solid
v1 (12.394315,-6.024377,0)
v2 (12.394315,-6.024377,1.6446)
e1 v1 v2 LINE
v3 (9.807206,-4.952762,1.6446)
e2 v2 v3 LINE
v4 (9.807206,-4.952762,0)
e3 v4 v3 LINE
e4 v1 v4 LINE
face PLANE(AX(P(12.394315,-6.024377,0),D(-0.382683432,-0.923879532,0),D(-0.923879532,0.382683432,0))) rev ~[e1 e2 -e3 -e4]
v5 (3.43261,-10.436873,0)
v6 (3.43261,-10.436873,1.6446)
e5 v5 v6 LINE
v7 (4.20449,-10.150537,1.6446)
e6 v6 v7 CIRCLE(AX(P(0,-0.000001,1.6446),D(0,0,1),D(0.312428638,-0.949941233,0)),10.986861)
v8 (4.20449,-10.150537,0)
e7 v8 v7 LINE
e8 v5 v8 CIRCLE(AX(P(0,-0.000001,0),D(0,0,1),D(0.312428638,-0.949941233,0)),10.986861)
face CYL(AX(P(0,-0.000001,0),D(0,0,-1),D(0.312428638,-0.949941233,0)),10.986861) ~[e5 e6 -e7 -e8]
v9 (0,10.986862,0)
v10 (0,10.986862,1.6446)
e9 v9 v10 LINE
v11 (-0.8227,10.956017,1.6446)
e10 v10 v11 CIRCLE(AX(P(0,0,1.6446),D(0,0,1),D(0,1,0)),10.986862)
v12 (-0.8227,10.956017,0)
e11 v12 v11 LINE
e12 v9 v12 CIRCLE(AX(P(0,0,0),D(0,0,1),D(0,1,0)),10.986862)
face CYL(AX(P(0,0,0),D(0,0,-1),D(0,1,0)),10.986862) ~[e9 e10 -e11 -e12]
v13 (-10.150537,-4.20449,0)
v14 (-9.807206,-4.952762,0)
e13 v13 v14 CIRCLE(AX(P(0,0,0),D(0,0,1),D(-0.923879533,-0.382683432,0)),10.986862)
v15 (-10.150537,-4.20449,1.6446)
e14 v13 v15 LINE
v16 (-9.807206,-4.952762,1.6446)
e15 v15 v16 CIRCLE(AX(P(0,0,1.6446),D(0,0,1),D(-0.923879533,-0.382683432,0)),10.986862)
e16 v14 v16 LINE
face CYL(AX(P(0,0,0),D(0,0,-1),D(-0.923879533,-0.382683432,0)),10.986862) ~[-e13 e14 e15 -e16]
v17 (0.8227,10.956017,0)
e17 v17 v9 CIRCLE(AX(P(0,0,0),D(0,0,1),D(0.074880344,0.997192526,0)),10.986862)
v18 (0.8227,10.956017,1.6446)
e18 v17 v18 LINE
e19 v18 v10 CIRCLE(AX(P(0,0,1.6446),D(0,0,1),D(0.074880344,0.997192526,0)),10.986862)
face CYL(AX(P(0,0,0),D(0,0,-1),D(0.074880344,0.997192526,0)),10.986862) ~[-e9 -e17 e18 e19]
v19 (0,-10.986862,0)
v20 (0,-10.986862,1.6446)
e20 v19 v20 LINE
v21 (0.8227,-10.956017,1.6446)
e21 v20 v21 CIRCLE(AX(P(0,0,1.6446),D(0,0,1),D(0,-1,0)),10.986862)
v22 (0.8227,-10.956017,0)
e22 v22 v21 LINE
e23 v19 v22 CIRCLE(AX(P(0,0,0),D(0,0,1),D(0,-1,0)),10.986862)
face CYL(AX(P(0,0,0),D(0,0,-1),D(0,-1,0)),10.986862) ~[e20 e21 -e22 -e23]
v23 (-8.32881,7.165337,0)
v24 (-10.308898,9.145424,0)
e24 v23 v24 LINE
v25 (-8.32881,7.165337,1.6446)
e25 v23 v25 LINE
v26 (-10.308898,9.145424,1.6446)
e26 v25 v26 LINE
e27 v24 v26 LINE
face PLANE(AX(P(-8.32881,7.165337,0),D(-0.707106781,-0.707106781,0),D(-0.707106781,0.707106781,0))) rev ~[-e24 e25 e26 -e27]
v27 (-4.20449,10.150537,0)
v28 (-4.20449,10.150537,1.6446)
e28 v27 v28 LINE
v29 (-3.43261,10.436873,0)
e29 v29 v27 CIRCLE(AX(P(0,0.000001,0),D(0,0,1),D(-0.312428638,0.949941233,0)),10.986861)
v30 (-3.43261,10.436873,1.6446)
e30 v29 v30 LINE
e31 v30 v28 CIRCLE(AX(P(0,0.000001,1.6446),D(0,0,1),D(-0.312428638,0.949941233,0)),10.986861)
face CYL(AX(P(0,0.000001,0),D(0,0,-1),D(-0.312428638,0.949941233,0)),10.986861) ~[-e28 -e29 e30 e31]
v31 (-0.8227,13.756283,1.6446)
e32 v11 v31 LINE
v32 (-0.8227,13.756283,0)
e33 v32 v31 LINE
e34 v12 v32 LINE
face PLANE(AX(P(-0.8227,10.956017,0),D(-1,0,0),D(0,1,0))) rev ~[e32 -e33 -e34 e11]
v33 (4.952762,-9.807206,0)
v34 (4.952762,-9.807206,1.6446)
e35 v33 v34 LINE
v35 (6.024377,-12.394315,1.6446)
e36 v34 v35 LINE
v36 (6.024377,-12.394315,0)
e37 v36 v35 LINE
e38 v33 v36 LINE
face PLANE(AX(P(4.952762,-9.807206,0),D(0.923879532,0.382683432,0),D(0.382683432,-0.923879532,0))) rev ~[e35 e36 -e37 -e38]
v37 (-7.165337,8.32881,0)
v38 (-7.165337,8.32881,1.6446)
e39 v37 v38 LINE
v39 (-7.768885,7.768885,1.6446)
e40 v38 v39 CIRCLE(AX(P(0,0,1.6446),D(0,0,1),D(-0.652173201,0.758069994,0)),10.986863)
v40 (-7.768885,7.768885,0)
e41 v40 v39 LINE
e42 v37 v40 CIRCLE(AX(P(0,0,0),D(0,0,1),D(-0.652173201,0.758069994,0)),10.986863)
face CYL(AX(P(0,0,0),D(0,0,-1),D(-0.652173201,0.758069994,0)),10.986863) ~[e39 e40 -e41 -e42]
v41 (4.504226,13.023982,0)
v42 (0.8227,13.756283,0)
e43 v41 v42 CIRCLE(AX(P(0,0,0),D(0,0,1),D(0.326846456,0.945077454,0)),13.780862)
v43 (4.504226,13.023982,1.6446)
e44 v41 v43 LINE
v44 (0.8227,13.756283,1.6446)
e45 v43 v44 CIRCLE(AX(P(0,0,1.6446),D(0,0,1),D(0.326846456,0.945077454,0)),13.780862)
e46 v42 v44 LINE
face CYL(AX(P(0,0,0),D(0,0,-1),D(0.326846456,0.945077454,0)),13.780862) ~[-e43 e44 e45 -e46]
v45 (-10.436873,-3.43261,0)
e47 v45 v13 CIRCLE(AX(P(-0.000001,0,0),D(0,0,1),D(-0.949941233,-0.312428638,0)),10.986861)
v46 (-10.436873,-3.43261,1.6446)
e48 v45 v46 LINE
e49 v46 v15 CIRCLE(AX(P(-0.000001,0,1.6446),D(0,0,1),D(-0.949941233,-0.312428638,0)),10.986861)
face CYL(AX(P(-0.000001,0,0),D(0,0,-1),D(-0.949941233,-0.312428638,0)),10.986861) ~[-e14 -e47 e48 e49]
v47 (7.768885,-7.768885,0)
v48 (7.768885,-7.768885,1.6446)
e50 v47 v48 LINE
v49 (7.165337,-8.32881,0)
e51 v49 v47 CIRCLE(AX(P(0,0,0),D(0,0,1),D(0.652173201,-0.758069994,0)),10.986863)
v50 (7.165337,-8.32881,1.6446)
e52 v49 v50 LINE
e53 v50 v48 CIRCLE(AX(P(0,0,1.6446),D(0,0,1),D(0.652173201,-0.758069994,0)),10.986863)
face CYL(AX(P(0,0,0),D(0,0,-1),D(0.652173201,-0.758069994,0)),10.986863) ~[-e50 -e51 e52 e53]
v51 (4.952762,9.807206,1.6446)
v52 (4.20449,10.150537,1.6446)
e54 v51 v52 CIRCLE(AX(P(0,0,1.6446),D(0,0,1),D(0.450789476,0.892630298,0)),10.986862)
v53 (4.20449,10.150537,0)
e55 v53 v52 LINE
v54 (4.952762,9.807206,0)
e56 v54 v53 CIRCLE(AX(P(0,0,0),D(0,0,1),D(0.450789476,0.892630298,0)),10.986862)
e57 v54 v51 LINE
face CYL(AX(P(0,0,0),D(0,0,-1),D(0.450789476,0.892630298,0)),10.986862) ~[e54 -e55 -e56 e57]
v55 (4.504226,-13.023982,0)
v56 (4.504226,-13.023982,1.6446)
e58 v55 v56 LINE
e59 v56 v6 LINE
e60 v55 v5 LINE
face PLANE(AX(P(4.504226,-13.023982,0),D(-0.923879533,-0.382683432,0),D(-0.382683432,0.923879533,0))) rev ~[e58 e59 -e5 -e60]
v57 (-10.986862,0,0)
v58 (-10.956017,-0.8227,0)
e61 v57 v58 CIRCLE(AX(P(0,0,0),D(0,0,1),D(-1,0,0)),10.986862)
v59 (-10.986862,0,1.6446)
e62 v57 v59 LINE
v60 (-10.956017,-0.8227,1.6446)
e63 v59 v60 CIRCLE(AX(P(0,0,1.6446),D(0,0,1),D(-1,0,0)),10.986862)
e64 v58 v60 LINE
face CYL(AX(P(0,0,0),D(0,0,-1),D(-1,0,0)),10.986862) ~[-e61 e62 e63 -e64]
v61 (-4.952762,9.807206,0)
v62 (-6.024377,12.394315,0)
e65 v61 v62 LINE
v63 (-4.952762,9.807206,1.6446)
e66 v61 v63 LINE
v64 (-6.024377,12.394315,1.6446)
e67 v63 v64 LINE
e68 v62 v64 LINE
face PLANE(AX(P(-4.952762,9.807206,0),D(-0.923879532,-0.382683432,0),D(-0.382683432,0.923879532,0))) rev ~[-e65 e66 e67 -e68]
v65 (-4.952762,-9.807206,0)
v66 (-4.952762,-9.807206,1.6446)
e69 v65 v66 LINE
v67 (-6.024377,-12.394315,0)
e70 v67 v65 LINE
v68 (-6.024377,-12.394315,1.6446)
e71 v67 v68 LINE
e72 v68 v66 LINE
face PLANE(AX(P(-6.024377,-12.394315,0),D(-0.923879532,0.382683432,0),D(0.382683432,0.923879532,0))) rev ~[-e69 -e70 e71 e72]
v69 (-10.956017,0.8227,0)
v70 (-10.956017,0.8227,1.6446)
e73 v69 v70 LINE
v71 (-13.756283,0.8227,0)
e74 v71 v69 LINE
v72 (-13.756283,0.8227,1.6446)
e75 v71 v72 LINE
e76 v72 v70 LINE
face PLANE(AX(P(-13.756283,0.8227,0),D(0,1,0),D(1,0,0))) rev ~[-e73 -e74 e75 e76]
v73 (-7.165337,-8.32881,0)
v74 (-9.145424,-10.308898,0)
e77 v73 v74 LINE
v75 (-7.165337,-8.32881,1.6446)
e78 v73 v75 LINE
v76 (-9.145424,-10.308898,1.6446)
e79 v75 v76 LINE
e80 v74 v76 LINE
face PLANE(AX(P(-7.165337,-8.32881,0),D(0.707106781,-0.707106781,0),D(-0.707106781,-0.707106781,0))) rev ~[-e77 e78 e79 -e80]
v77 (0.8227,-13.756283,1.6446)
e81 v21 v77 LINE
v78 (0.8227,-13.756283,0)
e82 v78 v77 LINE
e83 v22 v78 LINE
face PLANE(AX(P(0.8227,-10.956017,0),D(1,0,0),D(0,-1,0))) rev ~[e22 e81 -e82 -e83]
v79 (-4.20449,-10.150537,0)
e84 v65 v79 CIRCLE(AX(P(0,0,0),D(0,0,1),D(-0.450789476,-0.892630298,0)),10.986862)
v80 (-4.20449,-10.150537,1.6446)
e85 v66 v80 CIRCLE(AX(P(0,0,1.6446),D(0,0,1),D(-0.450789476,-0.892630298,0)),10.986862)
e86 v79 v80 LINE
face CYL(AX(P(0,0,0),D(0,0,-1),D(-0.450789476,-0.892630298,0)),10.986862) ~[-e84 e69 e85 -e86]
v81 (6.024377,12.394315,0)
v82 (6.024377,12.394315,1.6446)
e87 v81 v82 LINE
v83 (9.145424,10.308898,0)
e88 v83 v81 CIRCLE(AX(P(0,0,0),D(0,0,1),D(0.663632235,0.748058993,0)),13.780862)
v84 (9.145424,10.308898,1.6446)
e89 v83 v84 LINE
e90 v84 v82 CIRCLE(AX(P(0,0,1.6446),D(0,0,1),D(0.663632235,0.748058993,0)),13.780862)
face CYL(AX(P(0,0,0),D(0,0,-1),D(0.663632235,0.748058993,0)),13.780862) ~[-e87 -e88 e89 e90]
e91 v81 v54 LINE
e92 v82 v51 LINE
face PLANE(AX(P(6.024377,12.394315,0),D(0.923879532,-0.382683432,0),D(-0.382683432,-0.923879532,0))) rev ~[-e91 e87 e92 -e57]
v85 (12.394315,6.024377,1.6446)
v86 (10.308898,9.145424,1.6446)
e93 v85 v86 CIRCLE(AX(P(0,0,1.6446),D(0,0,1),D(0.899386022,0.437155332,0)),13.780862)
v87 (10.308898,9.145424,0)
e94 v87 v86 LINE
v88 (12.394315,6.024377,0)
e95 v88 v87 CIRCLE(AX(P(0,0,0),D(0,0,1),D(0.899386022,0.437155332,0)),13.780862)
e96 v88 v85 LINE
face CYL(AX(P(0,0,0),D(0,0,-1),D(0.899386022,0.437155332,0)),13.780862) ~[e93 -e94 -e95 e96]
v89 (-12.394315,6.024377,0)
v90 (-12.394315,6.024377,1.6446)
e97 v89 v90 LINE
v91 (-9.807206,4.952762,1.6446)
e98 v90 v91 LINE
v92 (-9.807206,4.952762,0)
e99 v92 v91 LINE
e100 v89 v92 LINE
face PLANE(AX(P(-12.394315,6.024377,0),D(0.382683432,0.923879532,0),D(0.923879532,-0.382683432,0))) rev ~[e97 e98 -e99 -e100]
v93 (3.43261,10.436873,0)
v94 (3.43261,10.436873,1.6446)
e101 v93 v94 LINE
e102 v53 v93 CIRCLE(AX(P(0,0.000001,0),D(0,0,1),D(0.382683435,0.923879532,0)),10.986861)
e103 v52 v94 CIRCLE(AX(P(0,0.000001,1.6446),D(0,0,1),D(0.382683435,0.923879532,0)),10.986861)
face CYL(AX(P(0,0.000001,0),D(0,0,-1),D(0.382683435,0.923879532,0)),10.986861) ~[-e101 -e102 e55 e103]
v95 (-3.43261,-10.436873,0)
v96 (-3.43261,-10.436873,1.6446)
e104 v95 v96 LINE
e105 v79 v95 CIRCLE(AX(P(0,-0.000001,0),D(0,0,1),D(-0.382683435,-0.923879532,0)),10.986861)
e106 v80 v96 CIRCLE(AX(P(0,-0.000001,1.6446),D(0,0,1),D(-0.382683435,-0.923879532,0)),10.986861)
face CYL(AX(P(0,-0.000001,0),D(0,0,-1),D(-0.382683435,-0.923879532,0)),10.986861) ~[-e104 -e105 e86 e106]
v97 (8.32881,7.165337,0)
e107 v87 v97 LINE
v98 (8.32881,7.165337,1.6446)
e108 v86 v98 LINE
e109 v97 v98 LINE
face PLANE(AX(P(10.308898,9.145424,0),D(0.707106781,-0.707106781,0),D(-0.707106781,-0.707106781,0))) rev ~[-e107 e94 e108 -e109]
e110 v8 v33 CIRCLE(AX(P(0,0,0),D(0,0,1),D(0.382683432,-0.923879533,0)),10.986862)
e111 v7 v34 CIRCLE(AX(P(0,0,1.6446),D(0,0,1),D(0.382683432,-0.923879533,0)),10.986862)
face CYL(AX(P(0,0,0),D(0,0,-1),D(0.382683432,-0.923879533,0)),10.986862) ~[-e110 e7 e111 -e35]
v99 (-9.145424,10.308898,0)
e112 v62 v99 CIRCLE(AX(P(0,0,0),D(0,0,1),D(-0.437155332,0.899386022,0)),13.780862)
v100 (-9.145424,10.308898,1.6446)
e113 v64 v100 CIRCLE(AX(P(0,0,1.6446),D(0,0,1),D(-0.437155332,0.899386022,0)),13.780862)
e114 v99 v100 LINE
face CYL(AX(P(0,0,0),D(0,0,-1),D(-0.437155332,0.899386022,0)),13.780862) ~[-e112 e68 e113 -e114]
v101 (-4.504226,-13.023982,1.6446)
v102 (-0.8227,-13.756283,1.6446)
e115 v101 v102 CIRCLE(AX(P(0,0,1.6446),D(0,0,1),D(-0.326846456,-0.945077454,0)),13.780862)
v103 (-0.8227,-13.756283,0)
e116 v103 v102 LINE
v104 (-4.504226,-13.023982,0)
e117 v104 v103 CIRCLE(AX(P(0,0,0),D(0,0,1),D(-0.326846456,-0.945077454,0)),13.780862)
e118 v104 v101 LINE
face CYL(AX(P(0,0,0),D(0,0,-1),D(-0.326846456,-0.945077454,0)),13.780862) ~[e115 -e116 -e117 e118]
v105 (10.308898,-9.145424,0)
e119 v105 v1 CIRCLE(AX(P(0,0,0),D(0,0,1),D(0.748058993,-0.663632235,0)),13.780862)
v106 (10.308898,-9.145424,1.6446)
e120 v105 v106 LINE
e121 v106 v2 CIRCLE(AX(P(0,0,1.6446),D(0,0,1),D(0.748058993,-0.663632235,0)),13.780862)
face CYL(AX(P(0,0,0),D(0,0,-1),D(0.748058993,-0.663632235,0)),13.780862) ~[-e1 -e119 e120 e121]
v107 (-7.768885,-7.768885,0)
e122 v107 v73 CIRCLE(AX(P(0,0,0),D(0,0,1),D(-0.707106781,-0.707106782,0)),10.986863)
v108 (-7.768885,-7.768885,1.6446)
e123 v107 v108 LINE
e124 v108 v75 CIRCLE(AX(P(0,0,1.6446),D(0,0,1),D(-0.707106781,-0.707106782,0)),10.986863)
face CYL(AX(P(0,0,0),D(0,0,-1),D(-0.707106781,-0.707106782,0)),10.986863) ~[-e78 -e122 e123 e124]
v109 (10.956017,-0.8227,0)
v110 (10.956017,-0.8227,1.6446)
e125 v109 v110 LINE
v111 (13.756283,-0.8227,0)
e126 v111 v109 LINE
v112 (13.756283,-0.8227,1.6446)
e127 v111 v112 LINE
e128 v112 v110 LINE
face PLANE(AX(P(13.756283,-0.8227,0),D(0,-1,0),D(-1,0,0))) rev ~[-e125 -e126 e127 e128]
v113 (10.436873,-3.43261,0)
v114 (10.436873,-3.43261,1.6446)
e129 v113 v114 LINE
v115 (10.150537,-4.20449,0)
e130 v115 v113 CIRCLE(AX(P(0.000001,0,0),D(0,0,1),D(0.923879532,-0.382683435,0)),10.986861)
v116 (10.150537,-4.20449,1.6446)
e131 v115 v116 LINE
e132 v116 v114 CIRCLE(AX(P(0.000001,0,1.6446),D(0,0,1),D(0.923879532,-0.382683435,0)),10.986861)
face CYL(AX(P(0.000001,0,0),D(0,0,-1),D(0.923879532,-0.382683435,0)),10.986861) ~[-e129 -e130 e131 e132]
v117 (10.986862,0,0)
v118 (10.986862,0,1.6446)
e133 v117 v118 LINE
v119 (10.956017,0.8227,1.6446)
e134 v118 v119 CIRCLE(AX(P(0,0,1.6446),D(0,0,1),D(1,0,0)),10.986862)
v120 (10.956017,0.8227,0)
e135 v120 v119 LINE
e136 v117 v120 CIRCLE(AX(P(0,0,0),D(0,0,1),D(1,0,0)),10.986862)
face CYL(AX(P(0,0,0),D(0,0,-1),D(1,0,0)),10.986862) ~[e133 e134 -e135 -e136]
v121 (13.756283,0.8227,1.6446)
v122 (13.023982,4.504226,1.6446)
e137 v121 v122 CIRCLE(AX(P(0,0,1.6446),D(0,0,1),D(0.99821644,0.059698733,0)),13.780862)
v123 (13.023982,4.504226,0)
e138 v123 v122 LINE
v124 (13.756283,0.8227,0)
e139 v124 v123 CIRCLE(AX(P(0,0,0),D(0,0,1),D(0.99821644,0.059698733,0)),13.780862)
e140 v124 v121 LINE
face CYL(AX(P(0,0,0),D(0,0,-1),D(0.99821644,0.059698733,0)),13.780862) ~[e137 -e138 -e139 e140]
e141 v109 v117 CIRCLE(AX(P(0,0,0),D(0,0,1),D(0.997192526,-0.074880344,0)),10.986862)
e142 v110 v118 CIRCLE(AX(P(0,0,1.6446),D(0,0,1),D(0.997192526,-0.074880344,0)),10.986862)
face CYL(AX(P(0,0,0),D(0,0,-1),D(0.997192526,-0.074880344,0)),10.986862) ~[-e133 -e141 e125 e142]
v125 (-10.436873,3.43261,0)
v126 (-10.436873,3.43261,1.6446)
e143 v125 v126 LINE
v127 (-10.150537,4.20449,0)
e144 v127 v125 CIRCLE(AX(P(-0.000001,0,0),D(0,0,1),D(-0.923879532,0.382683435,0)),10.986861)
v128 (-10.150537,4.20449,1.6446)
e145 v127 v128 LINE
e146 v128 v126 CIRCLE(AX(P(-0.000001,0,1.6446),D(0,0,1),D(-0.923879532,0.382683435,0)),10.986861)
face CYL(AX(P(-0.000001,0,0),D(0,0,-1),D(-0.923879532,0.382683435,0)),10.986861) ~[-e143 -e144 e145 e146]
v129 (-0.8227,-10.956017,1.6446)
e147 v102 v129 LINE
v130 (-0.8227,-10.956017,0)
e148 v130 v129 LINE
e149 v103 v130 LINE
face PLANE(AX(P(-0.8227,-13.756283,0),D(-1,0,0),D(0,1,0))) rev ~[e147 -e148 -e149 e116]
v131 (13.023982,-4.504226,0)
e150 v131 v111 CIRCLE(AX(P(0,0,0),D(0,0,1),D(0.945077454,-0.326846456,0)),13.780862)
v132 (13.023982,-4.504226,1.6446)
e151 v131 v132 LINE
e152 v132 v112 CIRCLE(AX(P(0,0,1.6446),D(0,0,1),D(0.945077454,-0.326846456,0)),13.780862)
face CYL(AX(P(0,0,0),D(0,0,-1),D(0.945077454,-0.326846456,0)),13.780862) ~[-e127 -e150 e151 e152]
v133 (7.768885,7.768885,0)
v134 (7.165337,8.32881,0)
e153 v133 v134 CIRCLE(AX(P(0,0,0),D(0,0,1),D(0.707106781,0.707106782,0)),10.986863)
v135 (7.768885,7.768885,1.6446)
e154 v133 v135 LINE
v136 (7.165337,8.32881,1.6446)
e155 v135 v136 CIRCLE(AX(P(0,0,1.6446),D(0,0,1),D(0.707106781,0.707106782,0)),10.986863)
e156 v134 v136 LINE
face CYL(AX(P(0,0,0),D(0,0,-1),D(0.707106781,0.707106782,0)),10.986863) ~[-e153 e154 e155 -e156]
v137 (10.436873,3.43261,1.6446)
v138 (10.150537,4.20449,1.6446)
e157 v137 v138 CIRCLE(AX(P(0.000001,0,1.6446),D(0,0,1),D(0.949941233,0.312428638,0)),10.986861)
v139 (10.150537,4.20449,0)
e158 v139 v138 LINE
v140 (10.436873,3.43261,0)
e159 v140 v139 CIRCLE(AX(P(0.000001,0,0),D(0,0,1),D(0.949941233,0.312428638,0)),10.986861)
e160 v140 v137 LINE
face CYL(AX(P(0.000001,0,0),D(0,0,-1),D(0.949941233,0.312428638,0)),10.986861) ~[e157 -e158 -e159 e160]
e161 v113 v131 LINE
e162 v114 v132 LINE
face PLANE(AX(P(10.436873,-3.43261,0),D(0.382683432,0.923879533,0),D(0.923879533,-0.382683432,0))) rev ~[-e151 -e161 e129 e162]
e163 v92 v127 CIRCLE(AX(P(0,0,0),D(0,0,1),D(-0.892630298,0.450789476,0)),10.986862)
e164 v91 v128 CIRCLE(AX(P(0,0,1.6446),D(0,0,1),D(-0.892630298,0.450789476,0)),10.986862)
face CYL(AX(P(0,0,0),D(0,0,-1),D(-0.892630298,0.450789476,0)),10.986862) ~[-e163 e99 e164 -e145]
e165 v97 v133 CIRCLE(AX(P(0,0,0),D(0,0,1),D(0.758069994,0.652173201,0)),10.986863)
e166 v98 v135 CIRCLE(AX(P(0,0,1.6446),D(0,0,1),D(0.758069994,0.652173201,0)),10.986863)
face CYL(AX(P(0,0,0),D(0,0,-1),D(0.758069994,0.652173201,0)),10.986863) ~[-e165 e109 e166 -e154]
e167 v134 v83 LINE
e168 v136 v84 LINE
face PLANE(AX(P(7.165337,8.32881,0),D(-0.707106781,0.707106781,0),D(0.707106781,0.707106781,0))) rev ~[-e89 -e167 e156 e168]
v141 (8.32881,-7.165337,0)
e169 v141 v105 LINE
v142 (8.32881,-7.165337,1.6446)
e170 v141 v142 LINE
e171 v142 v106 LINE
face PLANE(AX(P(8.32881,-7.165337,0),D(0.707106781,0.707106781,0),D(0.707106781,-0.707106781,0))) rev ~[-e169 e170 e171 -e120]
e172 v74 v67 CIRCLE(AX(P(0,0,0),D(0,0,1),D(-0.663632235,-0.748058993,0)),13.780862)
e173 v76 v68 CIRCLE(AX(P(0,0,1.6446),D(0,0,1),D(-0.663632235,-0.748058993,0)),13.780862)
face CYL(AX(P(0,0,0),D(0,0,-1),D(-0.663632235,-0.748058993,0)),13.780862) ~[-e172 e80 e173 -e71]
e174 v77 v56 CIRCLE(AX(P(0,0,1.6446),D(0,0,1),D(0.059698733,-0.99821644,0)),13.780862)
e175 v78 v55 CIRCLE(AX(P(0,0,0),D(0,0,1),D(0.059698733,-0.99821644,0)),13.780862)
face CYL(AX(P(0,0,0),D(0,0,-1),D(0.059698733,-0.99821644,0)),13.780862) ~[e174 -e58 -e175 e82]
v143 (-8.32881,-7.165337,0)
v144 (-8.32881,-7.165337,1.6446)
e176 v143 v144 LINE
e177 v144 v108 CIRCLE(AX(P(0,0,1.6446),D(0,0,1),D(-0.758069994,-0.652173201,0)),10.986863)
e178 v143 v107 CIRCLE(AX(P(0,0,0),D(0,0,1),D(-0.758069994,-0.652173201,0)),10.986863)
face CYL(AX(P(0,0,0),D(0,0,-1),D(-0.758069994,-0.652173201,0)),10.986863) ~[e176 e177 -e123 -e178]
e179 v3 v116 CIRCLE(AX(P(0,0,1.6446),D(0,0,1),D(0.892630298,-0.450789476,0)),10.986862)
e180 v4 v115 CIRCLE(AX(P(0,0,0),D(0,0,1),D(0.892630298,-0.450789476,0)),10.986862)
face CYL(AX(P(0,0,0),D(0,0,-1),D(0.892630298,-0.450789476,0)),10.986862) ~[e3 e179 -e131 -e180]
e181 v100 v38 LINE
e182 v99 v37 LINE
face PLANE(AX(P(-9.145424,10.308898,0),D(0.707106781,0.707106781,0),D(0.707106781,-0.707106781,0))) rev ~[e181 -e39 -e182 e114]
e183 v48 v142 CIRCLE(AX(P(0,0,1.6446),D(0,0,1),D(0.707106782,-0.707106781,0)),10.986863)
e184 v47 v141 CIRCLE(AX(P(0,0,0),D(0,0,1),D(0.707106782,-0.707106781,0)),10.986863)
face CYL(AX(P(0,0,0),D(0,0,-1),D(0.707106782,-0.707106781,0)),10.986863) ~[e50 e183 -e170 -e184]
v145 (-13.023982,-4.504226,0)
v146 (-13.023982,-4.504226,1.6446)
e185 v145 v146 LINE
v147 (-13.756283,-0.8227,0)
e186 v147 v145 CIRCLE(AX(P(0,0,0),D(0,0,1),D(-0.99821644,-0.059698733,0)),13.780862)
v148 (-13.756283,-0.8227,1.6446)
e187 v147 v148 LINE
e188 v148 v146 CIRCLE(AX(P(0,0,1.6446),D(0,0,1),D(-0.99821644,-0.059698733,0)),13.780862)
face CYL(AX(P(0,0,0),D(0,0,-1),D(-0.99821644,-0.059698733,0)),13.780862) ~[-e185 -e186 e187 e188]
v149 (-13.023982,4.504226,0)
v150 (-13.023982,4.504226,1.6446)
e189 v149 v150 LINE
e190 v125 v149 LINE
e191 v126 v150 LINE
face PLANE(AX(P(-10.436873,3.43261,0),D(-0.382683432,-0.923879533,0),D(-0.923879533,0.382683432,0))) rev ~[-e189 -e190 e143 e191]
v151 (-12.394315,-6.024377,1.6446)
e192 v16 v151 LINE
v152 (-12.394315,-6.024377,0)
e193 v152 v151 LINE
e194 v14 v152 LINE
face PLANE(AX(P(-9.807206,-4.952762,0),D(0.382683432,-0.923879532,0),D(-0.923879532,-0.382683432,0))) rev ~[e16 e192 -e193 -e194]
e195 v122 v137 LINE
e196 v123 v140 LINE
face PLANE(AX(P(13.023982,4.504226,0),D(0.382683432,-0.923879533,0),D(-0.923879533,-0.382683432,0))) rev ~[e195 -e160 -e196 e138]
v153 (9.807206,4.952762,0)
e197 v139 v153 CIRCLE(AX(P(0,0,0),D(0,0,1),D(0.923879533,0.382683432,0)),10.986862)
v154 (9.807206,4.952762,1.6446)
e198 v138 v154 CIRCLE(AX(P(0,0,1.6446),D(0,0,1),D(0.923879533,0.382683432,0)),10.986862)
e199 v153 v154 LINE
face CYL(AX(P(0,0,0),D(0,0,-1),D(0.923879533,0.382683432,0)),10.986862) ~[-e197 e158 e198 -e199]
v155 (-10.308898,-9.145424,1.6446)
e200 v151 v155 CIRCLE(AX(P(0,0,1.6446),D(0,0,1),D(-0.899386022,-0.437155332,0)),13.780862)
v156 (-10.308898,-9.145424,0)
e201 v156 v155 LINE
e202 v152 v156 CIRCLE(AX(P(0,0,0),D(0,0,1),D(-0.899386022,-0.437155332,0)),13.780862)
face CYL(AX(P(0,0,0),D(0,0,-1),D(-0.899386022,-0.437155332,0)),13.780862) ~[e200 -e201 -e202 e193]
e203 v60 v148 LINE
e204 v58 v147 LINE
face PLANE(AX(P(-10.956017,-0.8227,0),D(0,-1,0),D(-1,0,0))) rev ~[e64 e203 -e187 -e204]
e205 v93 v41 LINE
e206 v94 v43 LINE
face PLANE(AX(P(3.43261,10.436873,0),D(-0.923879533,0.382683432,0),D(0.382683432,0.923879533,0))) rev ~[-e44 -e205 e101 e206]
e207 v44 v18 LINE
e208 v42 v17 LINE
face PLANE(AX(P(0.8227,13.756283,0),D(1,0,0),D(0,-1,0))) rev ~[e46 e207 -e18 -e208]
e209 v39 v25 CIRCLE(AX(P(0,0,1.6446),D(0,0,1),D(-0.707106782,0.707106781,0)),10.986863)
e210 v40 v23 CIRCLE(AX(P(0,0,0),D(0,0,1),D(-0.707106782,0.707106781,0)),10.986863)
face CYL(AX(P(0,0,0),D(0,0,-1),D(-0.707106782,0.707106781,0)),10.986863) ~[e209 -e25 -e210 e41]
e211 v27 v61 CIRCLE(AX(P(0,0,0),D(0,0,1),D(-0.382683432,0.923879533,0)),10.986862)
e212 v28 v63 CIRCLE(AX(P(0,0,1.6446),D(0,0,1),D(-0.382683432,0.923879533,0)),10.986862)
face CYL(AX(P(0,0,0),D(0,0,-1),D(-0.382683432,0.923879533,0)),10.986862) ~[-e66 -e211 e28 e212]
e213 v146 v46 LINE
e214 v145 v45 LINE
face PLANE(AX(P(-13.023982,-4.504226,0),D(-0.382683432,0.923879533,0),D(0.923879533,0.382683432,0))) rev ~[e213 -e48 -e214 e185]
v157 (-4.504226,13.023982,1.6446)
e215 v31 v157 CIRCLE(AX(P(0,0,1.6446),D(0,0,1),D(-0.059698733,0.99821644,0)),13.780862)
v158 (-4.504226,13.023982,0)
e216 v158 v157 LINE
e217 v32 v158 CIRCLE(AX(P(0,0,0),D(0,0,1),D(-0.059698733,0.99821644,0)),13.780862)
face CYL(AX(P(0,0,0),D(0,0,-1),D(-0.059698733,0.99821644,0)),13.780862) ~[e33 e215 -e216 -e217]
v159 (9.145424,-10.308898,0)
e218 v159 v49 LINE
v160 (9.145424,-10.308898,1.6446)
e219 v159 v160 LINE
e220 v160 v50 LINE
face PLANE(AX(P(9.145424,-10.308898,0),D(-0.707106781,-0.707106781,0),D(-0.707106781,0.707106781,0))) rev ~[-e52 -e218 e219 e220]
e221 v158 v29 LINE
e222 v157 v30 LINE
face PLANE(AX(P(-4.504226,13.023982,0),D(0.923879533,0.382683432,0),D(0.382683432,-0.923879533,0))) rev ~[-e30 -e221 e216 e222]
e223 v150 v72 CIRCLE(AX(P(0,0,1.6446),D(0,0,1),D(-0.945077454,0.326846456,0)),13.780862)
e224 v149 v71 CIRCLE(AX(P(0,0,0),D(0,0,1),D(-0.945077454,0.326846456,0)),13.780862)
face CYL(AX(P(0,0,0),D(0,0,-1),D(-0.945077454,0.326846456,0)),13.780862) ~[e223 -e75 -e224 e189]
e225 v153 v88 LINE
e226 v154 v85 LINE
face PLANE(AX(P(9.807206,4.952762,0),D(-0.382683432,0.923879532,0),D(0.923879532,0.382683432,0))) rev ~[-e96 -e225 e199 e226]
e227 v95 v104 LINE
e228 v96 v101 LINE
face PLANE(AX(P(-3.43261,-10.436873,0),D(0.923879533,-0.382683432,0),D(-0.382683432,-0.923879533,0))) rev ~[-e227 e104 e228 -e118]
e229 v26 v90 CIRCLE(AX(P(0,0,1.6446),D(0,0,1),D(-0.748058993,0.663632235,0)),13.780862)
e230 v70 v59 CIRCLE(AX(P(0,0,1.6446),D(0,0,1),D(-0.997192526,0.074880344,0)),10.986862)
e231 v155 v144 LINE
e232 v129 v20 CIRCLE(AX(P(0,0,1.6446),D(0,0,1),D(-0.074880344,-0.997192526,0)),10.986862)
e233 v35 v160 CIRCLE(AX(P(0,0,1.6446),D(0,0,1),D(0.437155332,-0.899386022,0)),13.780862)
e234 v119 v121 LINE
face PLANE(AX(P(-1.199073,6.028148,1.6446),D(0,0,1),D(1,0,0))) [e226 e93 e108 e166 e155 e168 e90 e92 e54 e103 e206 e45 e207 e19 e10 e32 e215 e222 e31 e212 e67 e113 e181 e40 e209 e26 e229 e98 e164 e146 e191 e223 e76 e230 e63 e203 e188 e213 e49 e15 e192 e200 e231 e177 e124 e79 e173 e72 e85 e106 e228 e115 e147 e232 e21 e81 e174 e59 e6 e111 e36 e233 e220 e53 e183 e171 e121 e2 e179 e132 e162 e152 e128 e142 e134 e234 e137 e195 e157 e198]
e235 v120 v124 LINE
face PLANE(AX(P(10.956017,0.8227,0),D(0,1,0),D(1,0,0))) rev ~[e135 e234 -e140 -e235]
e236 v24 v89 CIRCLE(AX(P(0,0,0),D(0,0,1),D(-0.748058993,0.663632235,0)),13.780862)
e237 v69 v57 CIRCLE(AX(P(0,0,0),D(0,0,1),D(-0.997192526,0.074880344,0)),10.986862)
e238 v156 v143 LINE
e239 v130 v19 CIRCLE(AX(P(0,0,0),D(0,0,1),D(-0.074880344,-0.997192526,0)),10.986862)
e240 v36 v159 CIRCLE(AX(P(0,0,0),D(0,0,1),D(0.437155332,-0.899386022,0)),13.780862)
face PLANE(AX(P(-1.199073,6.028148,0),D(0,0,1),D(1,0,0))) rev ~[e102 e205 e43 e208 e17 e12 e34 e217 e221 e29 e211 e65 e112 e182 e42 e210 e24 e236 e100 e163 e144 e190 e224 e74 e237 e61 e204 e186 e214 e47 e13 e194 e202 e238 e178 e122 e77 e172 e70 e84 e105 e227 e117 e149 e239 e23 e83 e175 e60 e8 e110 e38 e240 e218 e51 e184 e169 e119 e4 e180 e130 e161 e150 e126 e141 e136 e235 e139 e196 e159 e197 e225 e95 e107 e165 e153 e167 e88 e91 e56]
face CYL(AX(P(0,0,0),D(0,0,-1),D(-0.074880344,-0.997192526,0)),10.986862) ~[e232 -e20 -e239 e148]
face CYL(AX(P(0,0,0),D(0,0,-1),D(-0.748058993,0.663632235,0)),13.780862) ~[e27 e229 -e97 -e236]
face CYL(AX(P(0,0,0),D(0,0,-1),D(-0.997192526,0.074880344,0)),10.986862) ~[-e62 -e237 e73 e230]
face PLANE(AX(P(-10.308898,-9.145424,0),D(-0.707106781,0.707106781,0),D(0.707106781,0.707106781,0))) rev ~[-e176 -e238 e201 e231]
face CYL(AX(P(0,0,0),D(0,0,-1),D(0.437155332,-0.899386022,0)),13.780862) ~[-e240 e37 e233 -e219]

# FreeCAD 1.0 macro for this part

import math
import FreeCAD as App
import Part
import Sketcher

V = App.Vector
Q = App.Units.Quantity

doc = App.newDocument("Part")
body = doc.addObject("PartDesign::Body", "Body")

# Sketch on XY plane
sketch1 = body.newObject("Sketcher::SketchObject", "Sketch")
sketch1.AttachmentSupport = (doc.getObject("XY_Plane"), [""])
sketch1.MapMode = "FlatFace"
sketch1.addGeometry([
    Part.LineSegment(V(-8.32881, 7.165337, 0), V(-10.308898, 9.145424, 0)),  # 0
    Part.ArcOfCircle(Part.Circle(V(0, 0, 0), V(0, 0, 1), 13.780862), math.radians(138.42252), math.radians(154.07748)),  # 1
    Part.LineSegment(V(-12.394315, 6.024377, 0), V(-9.807206, 4.952762, 0)),  # 2
    Part.ArcOfCircle(Part.Circle(V(0, 0, 0), V(0, 0, 1), 10.986862), math.radians(153.205653), math.radians(157.5)),  # 3
    Part.ArcOfCircle(Part.Circle(V(-0.000001, 0, 0), V(0, 0, 1), 10.986861), math.radians(157.5), math.radians(161.794347)),  # 4
    Part.LineSegment(V(-10.436873, 3.43261, 0), V(-13.023982, 4.504226, 0)),  # 5
    Part.ArcOfCircle(Part.Circle(V(0, 0, 0), V(0, 0, 1), 13.780862), math.radians(160.92252), math.radians(176.57748)),  # 6
    Part.LineSegment(V(-13.756283, 0.8227, 0), V(-10.956017, 0.8227, 0)),  # 7
    Part.ArcOfCircle(Part.Circle(V(0, 0, 0), V(0, 0, 1), 10.986862), math.radians(175.705653), math.radians(180)),  # 8
    Part.ArcOfCircle(Part.Circle(V(0, 0, 0), V(0, 0, 1), 10.986862), math.radians(180), math.radians(184.294347)),  # 9
    Part.LineSegment(V(-10.956017, -0.8227, 0), V(-13.756283, -0.8227, 0)),  # 10
    Part.ArcOfCircle(Part.Circle(V(0, 0, 0), V(0, 0, 1), 13.780862), math.radians(-176.57748), math.radians(-160.92252)),  # 11
    Part.LineSegment(V(-13.023982, -4.504226, 0), V(-10.436873, -3.43261, 0)),  # 12
    Part.ArcOfCircle(Part.Circle(V(-0.000001, 0, 0), V(0, 0, 1), 10.986861), math.radians(-161.794347), math.radians(-157.5)),  # 13
    Part.ArcOfCircle(Part.Circle(V(0, 0, 0), V(0, 0, 1), 10.986862), math.radians(-157.5), math.radians(-153.205653)),  # 14
    Part.LineSegment(V(-9.807206, -4.952762, 0), V(-12.394315, -6.024377, 0)),  # 15
    Part.ArcOfCircle(Part.Circle(V(0, 0, 0), V(0, 0, 1), 13.780862), math.radians(-154.07748), math.radians(-138.42252)),  # 16
    Part.LineSegment(V(-10.308898, -9.145424, 0), V(-8.32881, -7.165337, 0)),  # 17
    Part.ArcOfCircle(Part.Circle(V(0, 0, 0), V(0, 0, 1), 10.986863), math.radians(-139.294347), math.radians(-135)),  # 18
    Part.ArcOfCircle(Part.Circle(V(0, 0, 0), V(0, 0, 1), 10.986863), math.radians(-135), math.radians(-130.705653)),  # 19
    Part.LineSegment(V(-7.165337, -8.32881, 0), V(-9.145424, -10.308898, 0)),  # 20
    Part.ArcOfCircle(Part.Circle(V(0, 0, 0), V(0, 0, 1), 13.780862), math.radians(-131.57748), math.radians(-115.92252)),  # 21
    Part.LineSegment(V(-6.024377, -12.394315, 0), V(-4.952762, -9.807206, 0)),  # 22
    Part.ArcOfCircle(Part.Circle(V(0, 0, 0), V(0, 0, 1), 10.986862), math.radians(-116.794347), math.radians(-112.5)),  # 23
    Part.ArcOfCircle(Part.Circle(V(0, -0.000001, 0), V(0, 0, 1), 10.986861), math.radians(-112.5), math.radians(-108.205653)),  # 24
    Part.LineSegment(V(-3.43261, -10.436873, 0), V(-4.504226, -13.023982, 0)),  # 25
    Part.ArcOfCircle(Part.Circle(V(0, 0, 0), V(0, 0, 1), 13.780862), math.radians(-109.07748), math.radians(-93.42252)),  # 26
    Part.LineSegment(V(-0.8227, -13.756283, 0), V(-0.8227, -10.956017, 0)),  # 27
    Part.ArcOfCircle(Part.Circle(V(0, 0, 0), V(0, 0, 1), 10.986862), math.radians(-94.294347), math.radians(-90)),  # 28
    Part.ArcOfCircle(Part.Circle(V(0, 0, 0), V(0, 0, 1), 10.986862), math.radians(-90), math.radians(-85.705653)),  # 29
    Part.LineSegment(V(0.8227, -10.956017, 0), V(0.8227, -13.756283, 0)),  # 30
    Part.ArcOfCircle(Part.Circle(V(0, 0, 0), V(0, 0, 1), 13.780862), math.radians(-86.57748), math.radians(-70.92252)),  # 31
    Part.LineSegment(V(4.504226, -13.023982, 0), V(3.43261, -10.436873, 0)),  # 32
    Part.ArcOfCircle(Part.Circle(V(0, -0.000001, 0), V(0, 0, 1), 10.986861), math.radians(-71.794347), math.radians(-67.5)),  # 33
    Part.ArcOfCircle(Part.Circle(V(0, 0, 0), V(0, 0, 1), 10.986862), math.radians(-67.5), math.radians(-63.205653)),  # 34
    Part.LineSegment(V(4.952762, -9.807206, 0), V(6.024377, -12.394315, 0)),  # 35
    Part.ArcOfCircle(Part.Circle(V(0, 0, 0), V(0, 0, 1), 13.780862), math.radians(-64.07748), math.radians(-48.42252)),  # 36
    Part.LineSegment(V(9.145424, -10.308898, 0), V(7.165337, -8.32881, 0)),  # 37
    Part.ArcOfCircle(Part.Circle(V(0, 0, 0), V(0, 0, 1), 10.986863), math.radians(-49.294347), math.radians(-45)),  # 38
    Part.ArcOfCircle(Part.Circle(V(0, 0, 0), V(0, 0, 1), 10.986863), math.radians(-45), math.radians(-40.705653)),  # 39
    Part.LineSegment(V(8.32881, -7.165337, 0), V(10.308898, -9.145424, 0)),  # 40
    Part.ArcOfCircle(Part.Circle(V(0, 0, 0), V(0, 0, 1), 13.780862), math.radians(-41.57748), math.radians(-25.92252)),  # 41
    Part.LineSegment(V(12.394315, -6.024377, 0), V(9.807206, -4.952762, 0)),  # 42
    Part.ArcOfCircle(Part.Circle(V(0, 0, 0), V(0, 0, 1), 10.986862), math.radians(-26.794347), math.radians(-22.5)),  # 43
    Part.ArcOfCircle(Part.Circle(V(0.000001, 0, 0), V(0, 0, 1), 10.986861), math.radians(-22.5), math.radians(-18.205653)),  # 44
    Part.LineSegment(V(10.436873, -3.43261, 0), V(13.023982, -4.504226, 0)),  # 45
    Part.ArcOfCircle(Part.Circle(V(0, 0, 0), V(0, 0, 1), 13.780862), math.radians(-19.07748), math.radians(-3.42252)),  # 46
    Part.LineSegment(V(13.756283, -0.8227, 0), V(10.956017, -0.8227, 0)),  # 47
    Part.ArcOfCircle(Part.Circle(V(0, 0, 0), V(0, 0, 1), 10.986862), math.radians(-4.294347), math.radians(0)),  # 48
    Part.ArcOfCircle(Part.Circle(V(0, 0, 0), V(0, 0, 1), 10.986862), math.radians(0), math.radians(4.294347)),  # 49
    Part.LineSegment(V(10.956017, 0.8227, 0), V(13.756283, 0.8227, 0)),  # 50
    Part.ArcOfCircle(Part.Circle(V(0, 0, 0), V(0, 0, 1), 13.780862), math.radians(3.42252), math.radians(19.07748)),  # 51
    Part.LineSegment(V(13.023982, 4.504226, 0), V(10.436873, 3.43261, 0)),  # 52
    Part.ArcOfCircle(Part.Circle(V(0.000001, 0, 0), V(0, 0, 1), 10.986861), math.radians(18.205653), math.radians(22.5)),  # 53
    Part.ArcOfCircle(Part.Circle(V(0, 0, 0), V(0, 0, 1), 10.986862), math.radians(22.5), math.radians(26.794347)),  # 54
    Part.LineSegment(V(9.807206, 4.952762, 0), V(12.394315, 6.024377, 0)),  # 55
    Part.ArcOfCircle(Part.Circle(V(0, 0, 0), V(0, 0, 1), 13.780862), math.radians(25.92252), math.radians(41.57748)),  # 56
    Part.LineSegment(V(10.308898, 9.145424, 0), V(8.32881, 7.165337, 0)),  # 57
    Part.ArcOfCircle(Part.Circle(V(0, 0, 0), V(0, 0, 1), 10.986863), math.radians(40.705653), math.radians(45)),  # 58
    Part.ArcOfCircle(Part.Circle(V(0, 0, 0), V(0, 0, 1), 10.986863), math.radians(45), math.radians(49.294347)),  # 59
    Part.LineSegment(V(7.165337, 8.32881, 0), V(9.145424, 10.308898, 0)),  # 60
    Part.ArcOfCircle(Part.Circle(V(0, 0, 0), V(0, 0, 1), 13.780862), math.radians(48.42252), math.radians(64.07748)),  # 61
    Part.LineSegment(V(6.024377, 12.394315, 0), V(4.952762, 9.807206, 0)),  # 62
    Part.ArcOfCircle(Part.Circle(V(0, 0, 0), V(0, 0, 1), 10.986862), math.radians(63.205653), math.radians(67.5)),  # 63
    Part.ArcOfCircle(Part.Circle(V(0, 0.000001, 0), V(0, 0, 1), 10.986861), math.radians(67.5), math.radians(71.794347)),  # 64
    Part.LineSegment(V(3.43261, 10.436873, 0), V(4.504226, 13.023982, 0)),  # 65
    Part.ArcOfCircle(Part.Circle(V(0, 0, 0), V(0, 0, 1), 13.780862), math.radians(70.92252), math.radians(86.57748)),  # 66
    Part.LineSegment(V(0.8227, 13.756283, 0), V(0.8227, 10.956017, 0)),  # 67
    Part.ArcOfCircle(Part.Circle(V(0, 0, 0), V(0, 0, 1), 10.986862), math.radians(85.705653), math.radians(90)),  # 68
    Part.ArcOfCircle(Part.Circle(V(0, 0, 0), V(0, 0, 1), 10.986862), math.radians(90), math.radians(94.294347)),  # 69
    Part.LineSegment(V(-0.8227, 10.956017, 0), V(-0.8227, 13.756283, 0)),  # 70
    Part.ArcOfCircle(Part.Circle(V(0, 0, 0), V(0, 0, 1), 13.780862), math.radians(93.42252), math.radians(109.07748)),  # 71
    Part.LineSegment(V(-4.504226, 13.023982, 0), V(-3.43261, 10.436873, 0)),  # 72
    Part.ArcOfCircle(Part.Circle(V(0, 0.000001, 0), V(0, 0, 1), 10.986861), math.radians(108.205653), math.radians(112.5)),  # 73
    Part.ArcOfCircle(Part.Circle(V(0, 0, 0), V(0, 0, 1), 10.986862), math.radians(112.5), math.radians(116.794347)),  # 74
    Part.LineSegment(V(-4.952762, 9.807206, 0), V(-6.024377, 12.394315, 0)),  # 75
    Part.ArcOfCircle(Part.Circle(V(0, 0, 0), V(0, 0, 1), 13.780862), math.radians(115.92252), math.radians(131.57748)),  # 76
    Part.LineSegment(V(-9.145424, 10.308898, 0), V(-7.165337, 8.32881, 0)),  # 77
    Part.ArcOfCircle(Part.Circle(V(0, 0, 0), V(0, 0, 1), 10.986863), math.radians(130.705653), math.radians(135)),  # 78
    Part.ArcOfCircle(Part.Circle(V(0, 0, 0), V(0, 0, 1), 10.986863), math.radians(135), math.radians(139.294347)),  # 79
], False)
sketch1.addConstraint([
    Sketcher.Constraint("Coincident", 0, 2, 1, 1),
    Sketcher.Constraint("Coincident", 1, 2, 2, 1),
    Sketcher.Constraint("Coincident", 2, 2, 3, 1),
    Sketcher.Constraint("Tangent", 3, 2, 4, 1),
    Sketcher.Constraint("Coincident", 4, 2, 5, 1),
    Sketcher.Constraint("Coincident", 5, 2, 6, 1),
    Sketcher.Constraint("Coincident", 6, 2, 7, 1),
    Sketcher.Constraint("Coincident", 7, 2, 8, 1),
    Sketcher.Constraint("Tangent", 8, 2, 9, 1),
    Sketcher.Constraint("Coincident", 9, 2, 10, 1),
    Sketcher.Constraint("Coincident", 10, 2, 11, 1),
    Sketcher.Constraint("Coincident", 11, 2, 12, 1),
    Sketcher.Constraint("Coincident", 12, 2, 13, 1),
    Sketcher.Constraint("Tangent", 13, 2, 14, 1),
    Sketcher.Constraint("Coincident", 14, 2, 15, 1),
    Sketcher.Constraint("Coincident", 15, 2, 16, 1),
    Sketcher.Constraint("Coincident", 16, 2, 17, 1),
    Sketcher.Constraint("Coincident", 17, 2, 18, 1),
    Sketcher.Constraint("Tangent", 18, 2, 19, 1),
    Sketcher.Constraint("Coincident", 19, 2, 20, 1),
    Sketcher.Constraint("Coincident", 20, 2, 21, 1),
    Sketcher.Constraint("Coincident", 21, 2, 22, 1),
    Sketcher.Constraint("Coincident", 22, 2, 23, 1),
    Sketcher.Constraint("Tangent", 23, 2, 24, 1),
    Sketcher.Constraint("Coincident", 24, 2, 25, 1),
    Sketcher.Constraint("Coincident", 25, 2, 26, 1),
    Sketcher.Constraint("Coincident", 26, 2, 27, 1),
    Sketcher.Constraint("Coincident", 27, 2, 28, 1),
    Sketcher.Constraint("Tangent", 28, 2, 29, 1),
    Sketcher.Constraint("Coincident", 29, 2, 30, 1),
    Sketcher.Constraint("Coincident", 30, 2, 31, 1),
    Sketcher.Constraint("Coincident", 31, 2, 32, 1),
    Sketcher.Constraint("Coincident", 32, 2, 33, 1),
    Sketcher.Constraint("Tangent", 33, 2, 34, 1),
    Sketcher.Constraint("Coincident", 34, 2, 35, 1),
    Sketcher.Constraint("Coincident", 35, 2, 36, 1),
    Sketcher.Constraint("Coincident", 36, 2, 37, 1),
    Sketcher.Constraint("Coincident", 37, 2, 38, 1),
    Sketcher.Constraint("Tangent", 38, 2, 39, 1),
    Sketcher.Constraint("Coincident", 39, 2, 40, 1),
    Sketcher.Constraint("Coincident", 40, 2, 41, 1),
    Sketcher.Constraint("Coincident", 41, 2, 42, 1),
    Sketcher.Constraint("Coincident", 42, 2, 43, 1),
    Sketcher.Constraint("Tangent", 43, 2, 44, 1),
    Sketcher.Constraint("Coincident", 44, 2, 45, 1),
    Sketcher.Constraint("Coincident", 45, 2, 46, 1),
    Sketcher.Constraint("Coincident", 46, 2, 47, 1),
    Sketcher.Constraint("Coincident", 47, 2, 48, 1),
    Sketcher.Constraint("Tangent", 48, 2, 49, 1),
    Sketcher.Constraint("Coincident", 49, 2, 50, 1),
    Sketcher.Constraint("Coincident", 50, 2, 51, 1),
    Sketcher.Constraint("Coincident", 51, 2, 52, 1),
    Sketcher.Constraint("Coincident", 52, 2, 53, 1),
    Sketcher.Constraint("Tangent", 53, 2, 54, 1),
    Sketcher.Constraint("Coincident", 54, 2, 55, 1),
    Sketcher.Constraint("Coincident", 55, 2, 56, 1),
    Sketcher.Constraint("Coincident", 56, 2, 57, 1),
    Sketcher.Constraint("Coincident", 57, 2, 58, 1),
    Sketcher.Constraint("Tangent", 58, 2, 59, 1),
    Sketcher.Constraint("Coincident", 59, 2, 60, 1),
    Sketcher.Constraint("Coincident", 60, 2, 61, 1),
    Sketcher.Constraint("Coincident", 61, 2, 62, 1),
    Sketcher.Constraint("Coincident", 62, 2, 63, 1),
    Sketcher.Constraint("Tangent", 63, 2, 64, 1),
    Sketcher.Constraint("Coincident", 64, 2, 65, 1),
    Sketcher.Constraint("Coincident", 65, 2, 66, 1),
    Sketcher.Constraint("Coincident", 66, 2, 67, 1),
    Sketcher.Constraint("Coincident", 67, 2, 68, 1),
    Sketcher.Constraint("Tangent", 68, 2, 69, 1),
    Sketcher.Constraint("Coincident", 69, 2, 70, 1),
    Sketcher.Constraint("Coincident", 70, 2, 71, 1),
    Sketcher.Constraint("Coincident", 71, 2, 72, 1),
    Sketcher.Constraint("Coincident", 72, 2, 73, 1),
    Sketcher.Constraint("Tangent", 73, 2, 74, 1),
    Sketcher.Constraint("Coincident", 74, 2, 75, 1),
    Sketcher.Constraint("Coincident", 75, 2, 76, 1),
    Sketcher.Constraint("Coincident", 76, 2, 77, 1),
    Sketcher.Constraint("Coincident", 77, 2, 78, 1),
    Sketcher.Constraint("Tangent", 78, 2, 79, 1),
    Sketcher.Constraint("Coincident", 79, 2, 0, 1),
    Sketcher.Constraint("Horizontal", 7),
    Sketcher.Constraint("Horizontal", 10),
    Sketcher.Constraint("Vertical", 27),
    Sketcher.Constraint("Vertical", 30),
    Sketcher.Constraint("Horizontal", 47),
    Sketcher.Constraint("Horizontal", 50),
    Sketcher.Constraint("Vertical", 67),
    Sketcher.Constraint("Vertical", 70),
    Sketcher.Constraint("Coincident", 1, 3, -1, 1),
    Sketcher.Constraint("Coincident", 3, 3, -1, 1),
    Sketcher.Constraint("Coincident", 6, 3, -1, 1),
    Sketcher.Constraint("Coincident", 8, 3, -1, 1),
    Sketcher.Constraint("Coincident", 11, 3, -1, 1),
    Sketcher.Constraint("Coincident", 13, 3, -1, 1),
    Sketcher.Constraint("Coincident", 16, 3, -1, 1),
    Sketcher.Constraint("Coincident", 18, 3, -1, 1),
    Sketcher.Constraint("Coincident", 21, 3, -1, 1),
    Sketcher.Constraint("Coincident", 23, 3, -1, 1),
    Sketcher.Constraint("Coincident", 26, 3, -1, 1),
    Sketcher.Constraint("Coincident", 28, 3, -1, 1),
    Sketcher.Constraint("Coincident", 31, 3, -1, 1),
    Sketcher.Constraint("Coincident", 33, 3, -1, 1),
    Sketcher.Constraint("Coincident", 36, 3, -1, 1),
    Sketcher.Constraint("Coincident", 38, 3, -1, 1),
    Sketcher.Constraint("Coincident", 41, 3, -1, 1),
    Sketcher.Constraint("Coincident", 43, 3, -1, 1),
    Sketcher.Constraint("Coincident", 46, 3, -1, 1),
    Sketcher.Constraint("Coincident", 48, 3, -1, 1),
    Sketcher.Constraint("Coincident", 51, 3, -1, 1),
    Sketcher.Constraint("Coincident", 53, 3, -1, 1),
    Sketcher.Constraint("Coincident", 56, 3, -1, 1),
    Sketcher.Constraint("Coincident", 58, 3, -1, 1),
    Sketcher.Constraint("Coincident", 61, 3, -1, 1),
    Sketcher.Constraint("Coincident", 63, 3, -1, 1),
    Sketcher.Constraint("Coincident", 66, 3, -1, 1),
    Sketcher.Constraint("Coincident", 68, 3, -1, 1),
    Sketcher.Constraint("Coincident", 71, 3, -1, 1),
    Sketcher.Constraint("Coincident", 73, 3, -1, 1),
    Sketcher.Constraint("Coincident", 76, 3, -1, 1),
    Sketcher.Constraint("Coincident", 78, 3, -1, 1),
    Sketcher.Constraint("Equal", 3, 4),
    Sketcher.Constraint("Equal", 1, 6),
    Sketcher.Constraint("Equal", 4, 8),
    Sketcher.Constraint("Equal", 8, 9),
    Sketcher.Constraint("Equal", 6, 11),
    Sketcher.Constraint("Equal", 9, 13),
    Sketcher.Constraint("Equal", 13, 14),
    Sketcher.Constraint("Equal", 11, 16),
    Sketcher.Constraint("Equal", 14, 18),
    Sketcher.Constraint("Equal", 18, 19),
    Sketcher.Constraint("Equal", 16, 21),
    Sketcher.Constraint("Equal", 19, 23),
    Sketcher.Constraint("Equal", 23, 24),
    Sketcher.Constraint("Equal", 21, 26),
    Sketcher.Constraint("Equal", 24, 28),
    Sketcher.Constraint("Equal", 28, 29),
    Sketcher.Constraint("Equal", 26, 31),
    Sketcher.Constraint("Equal", 29, 33),
    Sketcher.Constraint("Equal", 33, 34),
    Sketcher.Constraint("Equal", 31, 36),
    Sketcher.Constraint("Equal", 34, 38),
    Sketcher.Constraint("Equal", 38, 39),
    Sketcher.Constraint("Equal", 36, 41),
    Sketcher.Constraint("Equal", 39, 43),
    Sketcher.Constraint("Equal", 43, 44),
    Sketcher.Constraint("Equal", 41, 46),
    Sketcher.Constraint("Equal", 44, 48),
    Sketcher.Constraint("Equal", 48, 49),
    Sketcher.Constraint("Equal", 46, 51),
    Sketcher.Constraint("Equal", 49, 53),
    Sketcher.Constraint("Equal", 53, 54),
    Sketcher.Constraint("Equal", 51, 56),
    Sketcher.Constraint("Equal", 54, 58),
    Sketcher.Constraint("Equal", 58, 59),
    Sketcher.Constraint("Equal", 56, 61),
    Sketcher.Constraint("Equal", 59, 63),
    Sketcher.Constraint("Equal", 63, 64),
    Sketcher.Constraint("Equal", 61, 66),
    Sketcher.Constraint("Equal", 64, 68),
    Sketcher.Constraint("Equal", 68, 69),
    Sketcher.Constraint("Equal", 66, 71),
    Sketcher.Constraint("Equal", 69, 73),
    Sketcher.Constraint("Equal", 73, 74),
    Sketcher.Constraint("Equal", 71, 76),
    Sketcher.Constraint("Equal", 74, 78),
    Sketcher.Constraint("Equal", 78, 79),
    Sketcher.Constraint("PointOnObject", 8, 2, -1),
    Sketcher.Constraint("PointOnObject", 28, 2, -2),
    Sketcher.Constraint("PointOnObject", 48, 2, -1),
    Sketcher.Constraint("PointOnObject", 68, 2, -2),
    Sketcher.Constraint("Parallel", 2, 5),
    Sketcher.Constraint("Parallel", 12, 15),
    Sketcher.Constraint("Perpendicular", 0, 17),
    Sketcher.Constraint("Parallel", 17, 20),
    Sketcher.Constraint("Perpendicular", 5, 22),
    Sketcher.Constraint("Parallel", 22, 25),
    Sketcher.Constraint("Perpendicular", 15, 32),
    Sketcher.Constraint("Parallel", 32, 35),
    Sketcher.Constraint("Perpendicular", 20, 37),
    Sketcher.Constraint("Parallel", 37, 40),
    Sketcher.Constraint("Perpendicular", 25, 42),
    Sketcher.Constraint("Parallel", 42, 45),
    Sketcher.Constraint("Perpendicular", 35, 52),
    Sketcher.Constraint("Parallel", 52, 55),
    Sketcher.Constraint("Perpendicular", 40, 57),
    Sketcher.Constraint("Parallel", 57, 60),
    Sketcher.Constraint("Perpendicular", 45, 62),
    Sketcher.Constraint("Parallel", 62, 65),
    Sketcher.Constraint("Perpendicular", 55, 72),
    Sketcher.Constraint("Parallel", 72, 75),
    Sketcher.Constraint("Perpendicular", 60, 77),
    Sketcher.Constraint("Horizontal", 27, 2, 29, 2),
    Sketcher.Constraint("Horizontal", 25, 2, 31, 2),
    Sketcher.Constraint("Horizontal", 24, 2, 32, 2),
    Sketcher.Constraint("Horizontal", 23, 2, 33, 2),
    Sketcher.Constraint("Horizontal", 22, 2, 34, 2),
    Sketcher.Constraint("Horizontal", 20, 2, 36, 2),
    Sketcher.Constraint("Horizontal", 19, 2, 37, 2),
    Sketcher.Constraint("Horizontal", 18, 2, 38, 2),
    Sketcher.Constraint("Horizontal", 17, 2, 39, 2),
    Sketcher.Constraint("Horizontal", 15, 2, 41, 2),
    Sketcher.Constraint("Horizontal", 13, 2, 43, 2),
    Sketcher.Constraint("Horizontal", 12, 2, 44, 2),
    Sketcher.Constraint("Horizontal", 10, 2, 46, 2),
    Sketcher.Constraint("Horizontal", 7, 2, 49, 2),
    Sketcher.Constraint("Horizontal", 5, 2, 51, 2),
    Sketcher.Constraint("Horizontal", 3, 2, 53, 2),
    Sketcher.Constraint("Horizontal", 2, 2, 54, 2),
    Sketcher.Constraint("Horizontal", 0, 2, 56, 2),
    Sketcher.Constraint("Horizontal", 67, 2, 69, 2),
    Sketcher.Constraint("Horizontal", 65, 2, 71, 2),
    Sketcher.Constraint("Horizontal", 63, 2, 73, 2),
    Sketcher.Constraint("Horizontal", 62, 2, 74, 2),
    Sketcher.Constraint("Horizontal", 60, 2, 76, 2),
    Sketcher.Constraint("Horizontal", 58, 2, 78, 2),
    Sketcher.Constraint("Vertical", 7, 2, 9, 2),
    Sketcher.Constraint("Vertical", 5, 2, 11, 2),
    Sketcher.Constraint("Vertical", 3, 2, 13, 2),
    Sketcher.Constraint("Vertical", 2, 2, 14, 2),
    Sketcher.Constraint("Vertical", 0, 2, 16, 2),
    Sketcher.Constraint("Vertical", 38, 2, 58, 2),
    Sketcher.Constraint("Vertical", 37, 2, 59, 2),
    Sketcher.Constraint("Vertical", 35, 2, 61, 2),
    Sketcher.Constraint("Vertical", 33, 2, 63, 2),
    Sketcher.Constraint("Vertical", 32, 2, 64, 2),
    Sketcher.Constraint("Vertical", 30, 2, 66, 2),
    Sketcher.Constraint("Equal", 50, 27),
    Sketcher.Constraint("Equal", 0, 2),
    Sketcher.Constraint("Equal", 2, 5),
    Sketcher.Constraint("Equal", 17, 20),
    Sketcher.Constraint("Equal", 20, 22),
    Sketcher.Constraint("Equal", 22, 25),
    Sketcher.Constraint("Angle", 2, Q("-22.5 deg")),
    Sketcher.Constraint("Radius", 1, Q("13.780862 mm")),
    Sketcher.Constraint("Radius", 3, Q("10.986862 mm")),
    Sketcher.Constraint("DistanceY", -1, 1, 6, 2, Q("0.8227 mm")),
    Sketcher.Constraint("DistanceY", -1, 1, 2, 2, Q("4.952762 mm")),
    Sketcher.Constraint("DistanceY", -1, 1, 3, 2, Q("4.20449 mm")),
    Sketcher.Constraint("DistanceX", 23, 2, -1, 1, Q("4.20449 mm")),
    Sketcher.Constraint("DistanceX", 18, 2, -1, 1, Q("7.768885 mm")),
])
pad1 = body.newObject("PartDesign::Pad", "Pad")
pad1.Profile = sketch1
pad1.Length = 1.6446

doc.recompute()
